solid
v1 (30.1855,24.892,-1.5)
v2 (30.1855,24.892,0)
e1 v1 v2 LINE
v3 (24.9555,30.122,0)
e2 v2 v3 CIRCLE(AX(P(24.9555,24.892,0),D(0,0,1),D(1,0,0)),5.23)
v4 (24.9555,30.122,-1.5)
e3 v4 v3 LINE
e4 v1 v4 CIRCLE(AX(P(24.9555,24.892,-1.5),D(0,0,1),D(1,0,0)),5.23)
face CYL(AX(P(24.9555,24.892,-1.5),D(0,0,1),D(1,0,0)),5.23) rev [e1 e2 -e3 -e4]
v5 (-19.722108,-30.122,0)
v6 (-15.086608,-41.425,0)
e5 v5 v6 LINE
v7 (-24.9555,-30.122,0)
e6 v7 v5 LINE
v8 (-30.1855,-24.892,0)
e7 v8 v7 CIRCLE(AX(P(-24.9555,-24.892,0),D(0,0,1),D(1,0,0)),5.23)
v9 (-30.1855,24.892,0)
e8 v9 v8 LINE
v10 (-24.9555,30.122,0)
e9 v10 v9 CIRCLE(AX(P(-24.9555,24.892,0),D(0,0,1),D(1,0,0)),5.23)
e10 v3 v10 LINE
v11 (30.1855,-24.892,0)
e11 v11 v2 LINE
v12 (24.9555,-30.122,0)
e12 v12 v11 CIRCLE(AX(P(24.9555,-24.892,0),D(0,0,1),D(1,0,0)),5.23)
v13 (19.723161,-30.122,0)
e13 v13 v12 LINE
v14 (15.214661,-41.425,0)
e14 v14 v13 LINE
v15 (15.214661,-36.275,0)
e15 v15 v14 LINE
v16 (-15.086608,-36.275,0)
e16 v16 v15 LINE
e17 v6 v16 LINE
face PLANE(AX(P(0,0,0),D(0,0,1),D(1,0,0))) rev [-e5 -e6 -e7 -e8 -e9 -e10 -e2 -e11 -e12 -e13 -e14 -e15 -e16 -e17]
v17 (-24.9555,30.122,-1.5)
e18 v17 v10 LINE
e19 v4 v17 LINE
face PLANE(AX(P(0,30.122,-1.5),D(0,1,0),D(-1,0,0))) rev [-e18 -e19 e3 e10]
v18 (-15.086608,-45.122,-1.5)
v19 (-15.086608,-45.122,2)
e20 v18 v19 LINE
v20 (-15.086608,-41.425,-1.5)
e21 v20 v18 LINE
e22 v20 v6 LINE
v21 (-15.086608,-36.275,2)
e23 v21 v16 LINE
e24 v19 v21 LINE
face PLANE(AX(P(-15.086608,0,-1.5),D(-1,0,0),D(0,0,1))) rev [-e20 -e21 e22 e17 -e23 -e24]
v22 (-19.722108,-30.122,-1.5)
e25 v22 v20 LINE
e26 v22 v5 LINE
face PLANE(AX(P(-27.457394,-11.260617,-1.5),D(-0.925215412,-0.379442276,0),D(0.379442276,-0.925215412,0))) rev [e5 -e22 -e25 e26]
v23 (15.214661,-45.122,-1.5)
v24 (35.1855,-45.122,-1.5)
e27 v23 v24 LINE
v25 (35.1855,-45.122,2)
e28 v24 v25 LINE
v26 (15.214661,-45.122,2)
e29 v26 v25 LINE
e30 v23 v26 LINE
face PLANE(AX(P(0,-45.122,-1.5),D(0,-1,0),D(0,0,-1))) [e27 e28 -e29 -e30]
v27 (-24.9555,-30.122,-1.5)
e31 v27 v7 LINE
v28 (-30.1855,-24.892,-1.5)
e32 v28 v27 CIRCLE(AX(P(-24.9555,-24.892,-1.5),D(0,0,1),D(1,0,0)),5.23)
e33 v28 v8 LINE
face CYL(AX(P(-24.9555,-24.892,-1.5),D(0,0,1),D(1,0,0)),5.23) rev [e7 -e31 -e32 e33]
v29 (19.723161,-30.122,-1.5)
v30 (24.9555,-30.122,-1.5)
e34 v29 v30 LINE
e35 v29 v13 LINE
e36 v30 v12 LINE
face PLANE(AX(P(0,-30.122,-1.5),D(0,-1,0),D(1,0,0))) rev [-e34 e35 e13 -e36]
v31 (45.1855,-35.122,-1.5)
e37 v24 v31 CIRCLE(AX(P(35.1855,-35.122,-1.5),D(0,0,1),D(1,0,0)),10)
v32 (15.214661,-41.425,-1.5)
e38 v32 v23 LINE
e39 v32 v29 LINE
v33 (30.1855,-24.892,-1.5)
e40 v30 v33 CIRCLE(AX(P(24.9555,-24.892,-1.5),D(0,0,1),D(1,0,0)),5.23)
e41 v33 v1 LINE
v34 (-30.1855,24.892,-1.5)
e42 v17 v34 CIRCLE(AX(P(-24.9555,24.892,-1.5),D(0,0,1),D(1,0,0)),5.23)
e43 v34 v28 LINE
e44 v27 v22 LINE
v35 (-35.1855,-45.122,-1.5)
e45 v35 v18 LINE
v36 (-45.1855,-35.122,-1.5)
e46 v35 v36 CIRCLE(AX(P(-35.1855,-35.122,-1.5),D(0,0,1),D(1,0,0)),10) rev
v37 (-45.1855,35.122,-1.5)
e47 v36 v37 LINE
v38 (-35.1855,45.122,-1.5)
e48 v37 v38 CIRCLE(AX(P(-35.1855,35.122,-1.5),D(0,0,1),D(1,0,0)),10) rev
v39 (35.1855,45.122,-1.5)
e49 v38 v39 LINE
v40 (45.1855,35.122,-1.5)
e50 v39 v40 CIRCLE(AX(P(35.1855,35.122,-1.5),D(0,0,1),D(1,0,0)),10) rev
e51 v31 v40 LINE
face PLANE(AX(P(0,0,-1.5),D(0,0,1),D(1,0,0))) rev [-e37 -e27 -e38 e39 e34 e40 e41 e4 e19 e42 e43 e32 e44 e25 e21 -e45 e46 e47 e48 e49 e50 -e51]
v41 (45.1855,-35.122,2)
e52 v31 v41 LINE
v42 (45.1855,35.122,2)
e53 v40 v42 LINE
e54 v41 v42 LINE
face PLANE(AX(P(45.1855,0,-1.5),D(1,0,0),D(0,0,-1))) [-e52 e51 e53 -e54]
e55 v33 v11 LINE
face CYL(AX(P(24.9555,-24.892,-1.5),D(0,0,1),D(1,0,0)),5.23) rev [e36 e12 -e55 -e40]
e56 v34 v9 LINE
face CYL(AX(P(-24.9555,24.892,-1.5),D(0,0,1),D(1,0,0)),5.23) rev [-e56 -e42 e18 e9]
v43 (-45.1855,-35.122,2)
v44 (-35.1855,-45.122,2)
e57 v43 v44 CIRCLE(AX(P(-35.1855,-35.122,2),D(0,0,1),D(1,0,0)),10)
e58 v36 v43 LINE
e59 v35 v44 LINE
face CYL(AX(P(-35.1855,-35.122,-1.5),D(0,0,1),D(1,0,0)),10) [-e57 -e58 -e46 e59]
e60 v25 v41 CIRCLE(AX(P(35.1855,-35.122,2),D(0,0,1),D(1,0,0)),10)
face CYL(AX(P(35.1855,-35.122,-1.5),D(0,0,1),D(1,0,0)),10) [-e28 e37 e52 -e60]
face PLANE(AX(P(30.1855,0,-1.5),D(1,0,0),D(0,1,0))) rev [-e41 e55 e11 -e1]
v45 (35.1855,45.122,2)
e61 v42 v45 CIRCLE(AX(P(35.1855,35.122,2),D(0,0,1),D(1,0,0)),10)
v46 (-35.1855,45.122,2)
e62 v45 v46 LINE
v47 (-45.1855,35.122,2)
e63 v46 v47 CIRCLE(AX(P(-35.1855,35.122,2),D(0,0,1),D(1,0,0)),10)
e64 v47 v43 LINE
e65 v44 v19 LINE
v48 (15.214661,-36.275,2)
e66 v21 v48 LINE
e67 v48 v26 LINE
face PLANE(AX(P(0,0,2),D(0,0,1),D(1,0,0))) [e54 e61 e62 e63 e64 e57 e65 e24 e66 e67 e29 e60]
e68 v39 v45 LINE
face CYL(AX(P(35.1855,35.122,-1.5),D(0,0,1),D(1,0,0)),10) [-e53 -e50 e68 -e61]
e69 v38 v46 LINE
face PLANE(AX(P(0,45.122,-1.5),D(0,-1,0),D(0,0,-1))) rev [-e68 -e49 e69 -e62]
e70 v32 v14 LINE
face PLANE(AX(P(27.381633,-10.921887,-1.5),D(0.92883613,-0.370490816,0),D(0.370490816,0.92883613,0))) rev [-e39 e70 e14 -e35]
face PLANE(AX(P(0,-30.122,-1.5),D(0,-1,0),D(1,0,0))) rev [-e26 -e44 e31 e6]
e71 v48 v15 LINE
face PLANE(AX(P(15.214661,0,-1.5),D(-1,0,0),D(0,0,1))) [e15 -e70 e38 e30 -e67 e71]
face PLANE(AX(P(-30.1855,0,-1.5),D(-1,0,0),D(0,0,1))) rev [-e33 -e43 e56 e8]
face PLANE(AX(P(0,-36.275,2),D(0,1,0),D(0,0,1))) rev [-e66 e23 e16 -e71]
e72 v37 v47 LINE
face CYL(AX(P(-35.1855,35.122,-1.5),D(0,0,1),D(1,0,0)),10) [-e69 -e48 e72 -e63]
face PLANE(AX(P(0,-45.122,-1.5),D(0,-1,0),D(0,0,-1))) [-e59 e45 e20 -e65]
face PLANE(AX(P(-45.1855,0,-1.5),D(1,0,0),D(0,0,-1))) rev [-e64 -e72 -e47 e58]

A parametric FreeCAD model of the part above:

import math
import FreeCAD as App
import Part
import Sketcher

doc = App.newDocument("Part")
params = doc.addObject("Spreadsheet::Sheet", "Params")
for row, (alias, value) in enumerate([
    ("sketch1_radius", "10 mm"),
    ("sketch1_radius2", "5.23 mm"),
    ("pad1_length", "1.5 mm"),
    ("sketch2_radius", "10 mm"),
    ("pad2_length", "2 mm"),
], start=1):
    params.set(f"A{row}", alias)
    params.set(f"B{row}", "=" + value)
    params.setAlias(f"B{row}", alias)

body = doc.addObject("PartDesign::Body", "Body")

# Sketch on XY plane
sketch1 = body.newObject("Sketcher::SketchObject", "Sketch")
sketch1.AttachmentSupport = (doc.getObject("XY_Plane"), [""])
sketch1.MapMode = "FlatFace"
sketch1.addGeometry([
    Part.LineSegment(App.Vector(19.7, -30.1, 0), App.Vector(15.2, -41.4, 0)),  # 0
    Part.LineSegment(App.Vector(15.2, -41.4, 0), App.Vector(15.2, -45.1, 0)),  # 1
    Part.LineSegment(App.Vector(15.2, -45.1, 0), App.Vector(35.2, -45.1, 0)),  # 2
    Part.ArcOfCircle(Part.Circle(App.Vector(35.2, -35.1, 0), App.Vector(0, 0, 1), 10), math.radians(-90), math.radians(0)),  # 3
    Part.LineSegment(App.Vector(45.2, -35.1, 0), App.Vector(45.2, 35.1, 0)),  # 4
    Part.ArcOfCircle(Part.Circle(App.Vector(35.2, 35.1, 0), App.Vector(0, 0, 1), 10), math.radians(0), math.radians(90)),  # 5
    Part.LineSegment(App.Vector(35.2, 45.1, 0), App.Vector(-35.2, 45.1, 0)),  # 6
    Part.ArcOfCircle(Part.Circle(App.Vector(-35.2, 35.1, 0), App.Vector(0, 0, 1), 10), math.radians(90), math.radians(180)),  # 7
    Part.LineSegment(App.Vector(-45.2, 35.1, 0), App.Vector(-45.2, -35.1, 0)),  # 8
    Part.ArcOfCircle(Part.Circle(App.Vector(-35.2, -35.1, 0), App.Vector(0, 0, 1), 10), math.radians(180), math.radians(270)),  # 9
    Part.LineSegment(App.Vector(-35.2, -45.1, 0), App.Vector(-15.1, -45.1, 0)),  # 10
    Part.LineSegment(App.Vector(-15.1, -45.1, 0), App.Vector(-15.1, -41.4, 0)),  # 11
    Part.LineSegment(App.Vector(-15.1, -41.4, 0), App.Vector(-19.7, -30.1, 0)),  # 12
    Part.LineSegment(App.Vector(-19.7, -30.1, 0), App.Vector(-25, -30.1, 0)),  # 13
    Part.ArcOfCircle(Part.Circle(App.Vector(-25, -24.9, 0), App.Vector(0, 0, 1), 5.2), math.radians(180), math.radians(270)),  # 14
    Part.LineSegment(App.Vector(-30.2, -24.9, 0), App.Vector(-30.2, 24.9, 0)),  # 15
    Part.ArcOfCircle(Part.Circle(App.Vector(-25, 24.9, 0), App.Vector(0, 0, 1), 5.2), math.radians(90), math.radians(180)),  # 16
    Part.LineSegment(App.Vector(-25, 30.1, 0), App.Vector(25, 30.1, 0)),  # 17
    Part.ArcOfCircle(Part.Circle(App.Vector(25, 24.9, 0), App.Vector(0, 0, 1), 5.2), math.radians(0), math.radians(90)),  # 18
    Part.LineSegment(App.Vector(30.2, 24.9, 0), App.Vector(30.2, -24.9, 0)),  # 19
    Part.ArcOfCircle(Part.Circle(App.Vector(25, -24.9, 0), App.Vector(0, 0, 1), 5.2), math.radians(-90), math.radians(0)),  # 20
    Part.LineSegment(App.Vector(25, -30.1, 0), App.Vector(19.7, -30.1, 0)),  # 21
], False)
sketch1.addConstraint([
    Sketcher.Constraint("Coincident", 0, 2, 1, 1),
    Sketcher.Constraint("Coincident", 1, 2, 2, 1),
    Sketcher.Constraint("Tangent", 2, 2, 3, 1),
    Sketcher.Constraint("Tangent", 3, 2, 4, 1),
    Sketcher.Constraint("Tangent", 4, 2, 5, 1),
    Sketcher.Constraint("Tangent", 5, 2, 6, 1),
    Sketcher.Constraint("Tangent", 6, 2, 7, 1),
    Sketcher.Constraint("Tangent", 7, 2, 8, 1),
    Sketcher.Constraint("Tangent", 8, 2, 9, 1),
    Sketcher.Constraint("Tangent", 9, 2, 10, 1),
    Sketcher.Constraint("Coincident", 10, 2, 11, 1),
    Sketcher.Constraint("Coincident", 11, 2, 12, 1),
    Sketcher.Constraint("Coincident", 12, 2, 13, 1),
    Sketcher.Constraint("Tangent", 13, 2, 14, 2),
    Sketcher.Constraint("Tangent", 14, 1, 15, 1),
    Sketcher.Constraint("Tangent", 15, 2, 16, 2),
    Sketcher.Constraint("Tangent", 16, 1, 17, 1),
    Sketcher.Constraint("Tangent", 17, 2, 18, 2),
    Sketcher.Constraint("Tangent", 18, 1, 19, 1),
    Sketcher.Constraint("Tangent", 19, 2, 20, 2),
    Sketcher.Constraint("Tangent", 20, 1, 21, 1),
    Sketcher.Constraint("Coincident", 21, 2, 0, 1),
    Sketcher.Constraint("Vertical", 1),
    Sketcher.Constraint("Horizontal", 2),
    Sketcher.Constraint("Vertical", 4),
    Sketcher.Constraint("Horizontal", 6),
    Sketcher.Constraint("Vertical", 8),
    Sketcher.Constraint("Horizontal", 10),
    Sketcher.Constraint("Vertical", 11),
    Sketcher.Constraint("Horizontal", 13),
    Sketcher.Constraint("Vertical", 15),
    Sketcher.Constraint("Horizontal", 17),
    Sketcher.Constraint("Vertical", 19),
    Sketcher.Constraint("Horizontal", 21),
    Sketcher.Constraint("Equal", 3, 5),
    Sketcher.Constraint("Equal", 5, 7),
    Sketcher.Constraint("Equal", 7, 9),
    Sketcher.Constraint("Equal", 14, 16),
    Sketcher.Constraint("Equal", 16, 18),
    Sketcher.Constraint("Equal", 18, 20),
    Sketcher.Constraint("Symmetric", 3, 3, 7, 3, -1, 1),
    Sketcher.Constraint("Symmetric", 14, 3, 18, 3, -1, 1),
    Sketcher.Constraint("Horizontal", 3, 3, 9, 3),
    Sketcher.Constraint("Horizontal", 14, 3, 20, 3),
    Sketcher.Constraint("Horizontal", 0, 2, 11, 2),
    Sketcher.Constraint("Radius", 3, 10.0),
    Sketcher.Constraint("Radius", 14, 5.23),
    Sketcher.Constraint("DistanceY", 10, 2, 12, 2, 15.0),
    Sketcher.Constraint("DistanceX", 9, 3, 14, 1, 5.0),
    Sketcher.Constraint("DistanceX", 6, 2, 6, 1, 70.371),
    Sketcher.Constraint("DistanceY", 1, 2, 1, 1, 3.697),
    Sketcher.Constraint("DistanceY", 4, 1, 4, 2, 70.244),
    Sketcher.Constraint("DistanceX", 2, 1, 2, 2, 19.970839),
    Sketcher.Constraint("DistanceX", 21, 2, 21, 1, 5.232339),
    Sketcher.Constraint("DistanceX", 12, 2, 11, 2, 4.6355),
    Sketcher.Constraint("DistanceX", 10, 1, 10, 2, 20.098892),
])
sketch1.setExpression("Constraints[45]", "Params.sketch1_radius")
sketch1.setExpression("Constraints[46]", "Params.sketch1_radius2")
pad1 = body.newObject("PartDesign::Pad", "Pad")
pad1.Profile = sketch1
pad1.setExpression("Length", "Params.pad1_length")
pad1.Reversed = True

# Sketch on XY plane
sketch2 = body.newObject("Sketcher::SketchObject", "Sketch001")
sketch2.AttachmentSupport = (doc.getObject("XY_Plane"), [""])
sketch2.MapMode = "FlatFace"
sketch2.addGeometry([
    Part.LineSegment(App.Vector(15, -45, 0), App.Vector(35, -45, 0)),  # 0
    Part.ArcOfCircle(Part.Circle(App.Vector(35, -35, 0), App.Vector(0, 0, 1), 10), math.radians(-90), math.radians(0)),  # 1
    Part.LineSegment(App.Vector(45, -35, 0), App.Vector(45, 35, 0)),  # 2
    Part.ArcOfCircle(Part.Circle(App.Vector(35, 35, 0), App.Vector(0, 0, 1), 10), math.radians(0), math.radians(90)),  # 3
    Part.LineSegment(App.Vector(35, 45, 0), App.Vector(-35, 45, 0)),  # 4
    Part.ArcOfCircle(Part.Circle(App.Vector(-35, 35, 0), App.Vector(0, 0, 1), 10), math.radians(90), math.radians(180)),  # 5
    Part.LineSegment(App.Vector(-45, 35, 0), App.Vector(-45, -35, 0)),  # 6
    Part.ArcOfCircle(Part.Circle(App.Vector(-35, -35, 0), App.Vector(0, 0, 1), 10), math.radians(180), math.radians(270)),  # 7
    Part.LineSegment(App.Vector(-35, -45, 0), App.Vector(-15, -45, 0)),  # 8
    Part.LineSegment(App.Vector(-15, -45, 0), App.Vector(-15, -36, 0)),  # 9
    Part.LineSegment(App.Vector(-15, -36, 0), App.Vector(15, -36, 0)),  # 10
    Part.LineSegment(App.Vector(15, -36, 0), App.Vector(15, -45, 0)),  # 11
], False)
sketch2.addConstraint([
    Sketcher.Constraint("Tangent", 0, 2, 1, 1),
    Sketcher.Constraint("Tangent", 1, 2, 2, 1),
    Sketcher.Constraint("Tangent", 2, 2, 3, 1),
    Sketcher.Constraint("Tangent", 3, 2, 4, 1),
    Sketcher.Constraint("Tangent", 4, 2, 5, 1),
    Sketcher.Constraint("Tangent", 5, 2, 6, 1),
    Sketcher.Constraint("Tangent", 6, 2, 7, 1),
    Sketcher.Constraint("Tangent", 7, 2, 8, 1),
    Sketcher.Constraint("Coincident", 8, 2, 9, 1),
    Sketcher.Constraint("Coincident", 9, 2, 10, 1),
    Sketcher.Constraint("Coincident", 10, 2, 11, 1),
    Sketcher.Constraint("Coincident", 11, 2, 0, 1),
    Sketcher.Constraint("Horizontal", 0),
    Sketcher.Constraint("Vertical", 2),
    Sketcher.Constraint("Horizontal", 4),
    Sketcher.Constraint("Vertical", 6),
    Sketcher.Constraint("Horizontal", 8),
    Sketcher.Constraint("Vertical", 9),
    Sketcher.Constraint("Horizontal", 10),
    Sketcher.Constraint("Vertical", 11),
    Sketcher.Constraint("Equal", 1, 3),
    Sketcher.Constraint("Equal", 3, 5),
    Sketcher.Constraint("Equal", 5, 7),
    Sketcher.Constraint("Symmetric", 1, 3, 5, 3, -1, 1),
    Sketcher.Constraint("Horizontal", 1, 3, 7, 3),
    Sketcher.Constraint("Radius", 1, 10.0),
    Sketcher.Constraint("DistanceX", 4, 2, 4, 1, 70.371),
    Sketcher.Constraint("DistanceY", 2, 1, 2, 2, 70.244),
    Sketcher.Constraint("DistanceY", 9, 1, 9, 2, 8.847),
    Sketcher.Constraint("DistanceX", 0, 1, 0, 2, 19.970839),
    Sketcher.Constraint("DistanceX", 10, 1, 10, 2, 30.301269),
])
sketch2.setExpression("Constraints[25]", "Params.sketch2_radius")
pad2 = body.newObject("PartDesign::Pad", "Pad001")
pad2.Profile = sketch2
pad2.setExpression("Length", "Params.pad2_length")

doc.recompute()
